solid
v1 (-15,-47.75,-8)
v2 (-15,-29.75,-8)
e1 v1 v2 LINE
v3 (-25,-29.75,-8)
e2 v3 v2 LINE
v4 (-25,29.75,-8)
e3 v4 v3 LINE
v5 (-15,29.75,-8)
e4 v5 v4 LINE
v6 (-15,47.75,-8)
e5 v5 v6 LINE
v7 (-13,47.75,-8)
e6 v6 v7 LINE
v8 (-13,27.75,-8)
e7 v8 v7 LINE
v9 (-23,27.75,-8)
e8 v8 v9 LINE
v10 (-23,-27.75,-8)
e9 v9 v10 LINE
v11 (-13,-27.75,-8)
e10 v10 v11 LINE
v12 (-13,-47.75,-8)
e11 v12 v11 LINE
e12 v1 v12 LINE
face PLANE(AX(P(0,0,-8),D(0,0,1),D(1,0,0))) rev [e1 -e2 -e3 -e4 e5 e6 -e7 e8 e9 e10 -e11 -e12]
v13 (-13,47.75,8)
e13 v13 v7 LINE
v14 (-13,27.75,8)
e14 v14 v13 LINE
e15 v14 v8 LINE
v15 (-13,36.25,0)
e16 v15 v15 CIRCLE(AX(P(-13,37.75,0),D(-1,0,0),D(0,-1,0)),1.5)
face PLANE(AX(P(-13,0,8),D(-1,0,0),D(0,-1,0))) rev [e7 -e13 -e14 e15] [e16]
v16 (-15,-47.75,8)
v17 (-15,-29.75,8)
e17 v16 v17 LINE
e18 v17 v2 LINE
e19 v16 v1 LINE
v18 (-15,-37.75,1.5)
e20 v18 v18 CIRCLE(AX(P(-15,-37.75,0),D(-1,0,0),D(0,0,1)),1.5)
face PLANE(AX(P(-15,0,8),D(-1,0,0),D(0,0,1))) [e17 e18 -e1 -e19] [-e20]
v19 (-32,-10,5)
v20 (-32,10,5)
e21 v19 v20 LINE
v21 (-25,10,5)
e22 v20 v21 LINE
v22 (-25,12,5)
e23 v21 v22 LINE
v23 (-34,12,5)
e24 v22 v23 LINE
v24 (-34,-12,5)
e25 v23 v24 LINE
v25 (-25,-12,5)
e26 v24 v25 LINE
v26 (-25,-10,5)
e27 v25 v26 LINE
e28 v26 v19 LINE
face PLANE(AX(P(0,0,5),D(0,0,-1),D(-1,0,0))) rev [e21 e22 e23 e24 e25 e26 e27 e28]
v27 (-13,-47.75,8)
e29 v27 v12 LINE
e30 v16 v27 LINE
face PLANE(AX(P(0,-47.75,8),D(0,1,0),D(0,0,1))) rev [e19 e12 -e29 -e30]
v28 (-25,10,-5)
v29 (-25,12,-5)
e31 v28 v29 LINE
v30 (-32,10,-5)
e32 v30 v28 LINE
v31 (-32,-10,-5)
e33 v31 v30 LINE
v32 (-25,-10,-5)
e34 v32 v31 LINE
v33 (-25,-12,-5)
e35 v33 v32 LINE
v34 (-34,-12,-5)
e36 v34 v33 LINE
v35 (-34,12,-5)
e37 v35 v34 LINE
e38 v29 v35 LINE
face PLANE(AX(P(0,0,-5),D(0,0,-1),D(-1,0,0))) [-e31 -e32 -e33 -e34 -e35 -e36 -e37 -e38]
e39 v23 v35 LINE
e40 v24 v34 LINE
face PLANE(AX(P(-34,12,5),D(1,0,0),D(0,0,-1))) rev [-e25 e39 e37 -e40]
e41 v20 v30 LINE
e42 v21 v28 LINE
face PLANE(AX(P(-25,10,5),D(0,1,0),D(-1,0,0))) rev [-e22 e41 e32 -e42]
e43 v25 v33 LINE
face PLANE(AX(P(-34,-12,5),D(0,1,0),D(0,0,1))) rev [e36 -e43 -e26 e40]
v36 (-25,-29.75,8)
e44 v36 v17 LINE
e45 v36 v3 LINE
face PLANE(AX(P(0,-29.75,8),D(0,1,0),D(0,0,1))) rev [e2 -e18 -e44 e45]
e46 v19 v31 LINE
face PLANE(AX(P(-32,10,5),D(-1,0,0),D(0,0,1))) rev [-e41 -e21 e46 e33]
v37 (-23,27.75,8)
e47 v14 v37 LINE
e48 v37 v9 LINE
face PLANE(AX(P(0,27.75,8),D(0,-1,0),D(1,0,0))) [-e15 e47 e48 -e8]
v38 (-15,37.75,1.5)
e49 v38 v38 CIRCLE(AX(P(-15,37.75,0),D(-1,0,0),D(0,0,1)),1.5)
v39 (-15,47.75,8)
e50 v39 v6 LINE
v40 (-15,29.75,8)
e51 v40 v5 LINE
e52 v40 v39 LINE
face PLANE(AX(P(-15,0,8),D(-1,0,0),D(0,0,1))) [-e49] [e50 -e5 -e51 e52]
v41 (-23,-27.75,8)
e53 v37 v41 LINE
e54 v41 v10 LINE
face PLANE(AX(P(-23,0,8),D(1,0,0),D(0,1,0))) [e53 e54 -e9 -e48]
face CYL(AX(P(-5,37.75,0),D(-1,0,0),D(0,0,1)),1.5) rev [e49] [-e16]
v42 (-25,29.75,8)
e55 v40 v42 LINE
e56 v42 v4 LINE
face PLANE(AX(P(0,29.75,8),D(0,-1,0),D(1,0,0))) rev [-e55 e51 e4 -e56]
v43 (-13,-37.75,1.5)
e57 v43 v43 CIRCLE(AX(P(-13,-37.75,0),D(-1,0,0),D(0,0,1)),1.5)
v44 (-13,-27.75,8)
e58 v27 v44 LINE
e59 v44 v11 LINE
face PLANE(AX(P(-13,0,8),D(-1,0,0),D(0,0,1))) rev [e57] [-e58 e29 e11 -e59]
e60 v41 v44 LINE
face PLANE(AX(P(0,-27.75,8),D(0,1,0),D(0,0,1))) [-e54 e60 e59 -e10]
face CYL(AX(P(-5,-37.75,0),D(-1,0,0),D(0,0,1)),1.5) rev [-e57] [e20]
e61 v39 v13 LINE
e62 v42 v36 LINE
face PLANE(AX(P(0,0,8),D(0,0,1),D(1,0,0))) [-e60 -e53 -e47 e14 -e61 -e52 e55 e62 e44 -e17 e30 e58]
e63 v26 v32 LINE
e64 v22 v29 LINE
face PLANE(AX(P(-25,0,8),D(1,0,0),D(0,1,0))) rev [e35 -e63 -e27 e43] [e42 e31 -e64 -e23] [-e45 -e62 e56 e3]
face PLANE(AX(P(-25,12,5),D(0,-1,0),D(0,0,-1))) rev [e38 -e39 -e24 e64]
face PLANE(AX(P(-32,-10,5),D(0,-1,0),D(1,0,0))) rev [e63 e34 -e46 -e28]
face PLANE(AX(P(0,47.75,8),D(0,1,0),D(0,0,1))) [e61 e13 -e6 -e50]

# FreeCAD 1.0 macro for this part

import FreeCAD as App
import Part
import Sketcher
from FreeCAD import Vector

doc = App.newDocument("Part")
body = doc.addObject("PartDesign::Body", "Body")

# Sketch on XY plane
sketch1 = body.newObject("Sketcher::SketchObject", "Sketch")
sketch1.AttachmentSupport = (doc.getObject("XY_Plane"), [""])
sketch1.MapMode = "FlatFace"
sketch1.addGeometry(Part.LineSegment(Vector(-13, 27.8, 0), Vector(-13, 47.8, 0)), False)
sketch1.addGeometry(Part.LineSegment(Vector(-13, 47.8, 0), Vector(-15, 47.8, 0)), False)
sketch1.addGeometry(Part.LineSegment(Vector(-15, 47.8, 0), Vector(-15, 29.8, 0)), False)
sketch1.addGeometry(Part.LineSegment(Vector(-15, 29.8, 0), Vector(-25, 29.8, 0)), False)
sketch1.addGeometry(Part.LineSegment(Vector(-25, 29.8, 0), Vector(-25, -29.8, 0)), False)
sketch1.addGeometry(Part.LineSegment(Vector(-25, -29.8, 0), Vector(-15, -29.8, 0)), False)
sketch1.addGeometry(Part.LineSegment(Vector(-15, -29.8, 0), Vector(-15, -47.8, 0)), False)
sketch1.addGeometry(Part.LineSegment(Vector(-15, -47.8, 0), Vector(-13, -47.8, 0)), False)
sketch1.addGeometry(Part.LineSegment(Vector(-13, -47.8, 0), Vector(-13, -27.8, 0)), False)
sketch1.addGeometry(Part.LineSegment(Vector(-13, -27.8, 0), Vector(-23, -27.8, 0)), False)
sketch1.addGeometry(Part.LineSegment(Vector(-23, -27.8, 0), Vector(-23, 27.8, 0)), False)
sketch1.addGeometry(Part.LineSegment(Vector(-23, 27.8, 0), Vector(-13, 27.8, 0)), False)
sketch1.addConstraint(Sketcher.Constraint("Coincident", 0, 2, 1, 1))
sketch1.addConstraint(Sketcher.Constraint("Coincident", 1, 2, 2, 1))
sketch1.addConstraint(Sketcher.Constraint("Coincident", 2, 2, 3, 1))
sketch1.addConstraint(Sketcher.Constraint("Coincident", 3, 2, 4, 1))
sketch1.addConstraint(Sketcher.Constraint("Coincident", 4, 2, 5, 1))
sketch1.addConstraint(Sketcher.Constraint("Coincident", 5, 2, 6, 1))
sketch1.addConstraint(Sketcher.Constraint("Coincident", 6, 2, 7, 1))
sketch1.addConstraint(Sketcher.Constraint("Coincident", 7, 2, 8, 1))
sketch1.addConstraint(Sketcher.Constraint("Coincident", 8, 2, 9, 1))
sketch1.addConstraint(Sketcher.Constraint("Coincident", 9, 2, 10, 1))
sketch1.addConstraint(Sketcher.Constraint("Coincident", 10, 2, 11, 1))
sketch1.addConstraint(Sketcher.Constraint("Coincident", 11, 2, 0, 1))
sketch1.addConstraint(Sketcher.Constraint("Vertical", 0))
sketch1.addConstraint(Sketcher.Constraint("Horizontal", 1))
sketch1.addConstraint(Sketcher.Constraint("Vertical", 2))
sketch1.addConstraint(Sketcher.Constraint("Horizontal", 3))
sketch1.addConstraint(Sketcher.Constraint("Vertical", 4))
sketch1.addConstraint(Sketcher.Constraint("Horizontal", 5))
sketch1.addConstraint(Sketcher.Constraint("Vertical", 6))
sketch1.addConstraint(Sketcher.Constraint("Horizontal", 7))
sketch1.addConstraint(Sketcher.Constraint("Vertical", 8))
sketch1.addConstraint(Sketcher.Constraint("Horizontal", 9))
sketch1.addConstraint(Sketcher.Constraint("Vertical", 10))
sketch1.addConstraint(Sketcher.Constraint("Horizontal", 11))
sketch1.addConstraint(Sketcher.Constraint("Symmetric", 2, 2, 5, 2, -1))
sketch1.addConstraint(Sketcher.Constraint("Symmetric", 0, 2, 7, 2, -1))
sketch1.addConstraint(Sketcher.Constraint("Equal", 5, 9))
sketch1.addConstraint(Sketcher.Constraint("Equal", 0, 8))
sketch1.addConstraint(Sketcher.Constraint("DistanceX", 1, 2, 1, 1, 2.0))
sketch1.addConstraint(Sketcher.Constraint("DistanceX", 3, 2, 3, 1, 10.0))
sketch1.addConstraint(Sketcher.Constraint("DistanceY", 0, 1, 0, 2, 20.0))
sketch1.addConstraint(Sketcher.Constraint("DistanceY", 2, 2, 2, 1, 18.0))
sketch1.addConstraint(Sketcher.Constraint("DistanceY", 4, 2, 4, 1, 59.5))
sketch1.addConstraint(Sketcher.Constraint("DistanceX", 0, 2, -1, 1, 13.0))
pad1 = body.newObject("PartDesign::Pad", "Pad")
pad1.Profile = sketch1
pad1.Length = 16
pad1.Midplane = True

# Sketch on YZ plane
sketch2 = body.newObject("Sketcher::SketchObject", "Sketch001")
sketch2.AttachmentSupport = (doc.getObject("YZ_Plane"), [""])
sketch2.MapMode = "FlatFace"
sketch2.AttachmentOffset = App.Placement(Vector(0, 0, -15), App.Rotation())
sketch2.addGeometry(Part.Circle(Vector(37.8, 0, 0), Vector(0, 0, 1), 1.5), False)
sketch2.addGeometry(Part.Circle(Vector(-37.8, 0, 0), Vector(0, 0, 1), 1.5), False)
sketch2.addConstraint(Sketcher.Constraint("Equal", 0, 1))
sketch2.addConstraint(Sketcher.Constraint("Symmetric", 0, 3, 1, 3, -1, 1))
sketch2.addConstraint(Sketcher.Constraint("PointOnObject", 0, 3, -1))
sketch2.addConstraint(Sketcher.Constraint("Diameter", 0, 3.0))
sketch2.addConstraint(Sketcher.Constraint("DistanceX", 1, 3, 0, 3, 75.5))
pocket1 = body.newObject("PartDesign::Pocket", "Pocket")
pocket1.Profile = sketch2
pocket1.Length = 10
pocket1.Reversed = True

# Sketch on XY plane
sketch3 = body.newObject("Sketcher::SketchObject", "Sketch002")
sketch3.AttachmentSupport = (doc.getObject("XY_Plane"), [""])
sketch3.MapMode = "FlatFace"
sketch3.addGeometry(Part.LineSegment(Vector(-32, 10, 0), Vector(-25, 10, 0)), False)
sketch3.addGeometry(Part.LineSegment(Vector(-25, 10, 0), Vector(-25, 12, 0)), False)
sketch3.addGeometry(Part.LineSegment(Vector(-25, 12, 0), Vector(-34, 12, 0)), False)
sketch3.addGeometry(Part.LineSegment(Vector(-34, 12, 0), Vector(-34, -12, 0)), False)
sketch3.addGeometry(Part.LineSegment(Vector(-34, -12, 0), Vector(-25, -12, 0)), False)
sketch3.addGeometry(Part.LineSegment(Vector(-25, -12, 0), Vector(-25, -10, 0)), False)
sketch3.addGeometry(Part.LineSegment(Vector(-25, -10, 0), Vector(-32, -10, 0)), False)
sketch3.addGeometry(Part.LineSegment(Vector(-32, -10, 0), Vector(-32, 10, 0)), False)
sketch3.addConstraint(Sketcher.Constraint("Coincident", 0, 2, 1, 1))
sketch3.addConstraint(Sketcher.Constraint("Coincident", 1, 2, 2, 1))
sketch3.addConstraint(Sketcher.Constraint("Coincident", 2, 2, 3, 1))
sketch3.addConstraint(Sketcher.Constraint("Coincident", 3, 2, 4, 1))
sketch3.addConstraint(Sketcher.Constraint("Coincident", 4, 2, 5, 1))
sketch3.addConstraint(Sketcher.Constraint("Coincident", 5, 2, 6, 1))
sketch3.addConstraint(Sketcher.Constraint("Coincident", 6, 2, 7, 1))
sketch3.addConstraint(Sketcher.Constraint("Coincident", 7, 2, 0, 1))
sketch3.addConstraint(Sketcher.Constraint("Horizontal", 0))
sketch3.addConstraint(Sketcher.Constraint("Vertical", 1))
sketch3.addConstraint(Sketcher.Constraint("Horizontal", 2))
sketch3.addConstraint(Sketcher.Constraint("Vertical", 3))
sketch3.addConstraint(Sketcher.Constraint("Horizontal", 4))
sketch3.addConstraint(Sketcher.Constraint("Vertical", 5))
sketch3.addConstraint(Sketcher.Constraint("Horizontal", 6))
sketch3.addConstraint(Sketcher.Constraint("Vertical", 7))
sketch3.addConstraint(Sketcher.Constraint("Symmetric", 1, 2, 4, 2, -1))
sketch3.addConstraint(Sketcher.Constraint("Equal", 1, 5))
sketch3.addConstraint(Sketcher.Constraint("DistanceX", 0, 1, 0, 2, 7.0))
sketch3.addConstraint(Sketcher.Constraint("DistanceX", 2, 2, 2, 1, 9.0))
sketch3.addConstraint(Sketcher.Constraint("DistanceY", 1, 1, 1, 2, 2.0))
sketch3.addConstraint(Sketcher.Constraint("DistanceY", 3, 2, 3, 1, 24.0))
sketch3.addConstraint(Sketcher.Constraint("DistanceX", 0, 2, -1, 1, 25.0))
pad2 = body.newObject("PartDesign::Pad", "Pad001")
pad2.Profile = sketch3
pad2.Length = 10
pad2.Midplane = True

doc.recompute()
